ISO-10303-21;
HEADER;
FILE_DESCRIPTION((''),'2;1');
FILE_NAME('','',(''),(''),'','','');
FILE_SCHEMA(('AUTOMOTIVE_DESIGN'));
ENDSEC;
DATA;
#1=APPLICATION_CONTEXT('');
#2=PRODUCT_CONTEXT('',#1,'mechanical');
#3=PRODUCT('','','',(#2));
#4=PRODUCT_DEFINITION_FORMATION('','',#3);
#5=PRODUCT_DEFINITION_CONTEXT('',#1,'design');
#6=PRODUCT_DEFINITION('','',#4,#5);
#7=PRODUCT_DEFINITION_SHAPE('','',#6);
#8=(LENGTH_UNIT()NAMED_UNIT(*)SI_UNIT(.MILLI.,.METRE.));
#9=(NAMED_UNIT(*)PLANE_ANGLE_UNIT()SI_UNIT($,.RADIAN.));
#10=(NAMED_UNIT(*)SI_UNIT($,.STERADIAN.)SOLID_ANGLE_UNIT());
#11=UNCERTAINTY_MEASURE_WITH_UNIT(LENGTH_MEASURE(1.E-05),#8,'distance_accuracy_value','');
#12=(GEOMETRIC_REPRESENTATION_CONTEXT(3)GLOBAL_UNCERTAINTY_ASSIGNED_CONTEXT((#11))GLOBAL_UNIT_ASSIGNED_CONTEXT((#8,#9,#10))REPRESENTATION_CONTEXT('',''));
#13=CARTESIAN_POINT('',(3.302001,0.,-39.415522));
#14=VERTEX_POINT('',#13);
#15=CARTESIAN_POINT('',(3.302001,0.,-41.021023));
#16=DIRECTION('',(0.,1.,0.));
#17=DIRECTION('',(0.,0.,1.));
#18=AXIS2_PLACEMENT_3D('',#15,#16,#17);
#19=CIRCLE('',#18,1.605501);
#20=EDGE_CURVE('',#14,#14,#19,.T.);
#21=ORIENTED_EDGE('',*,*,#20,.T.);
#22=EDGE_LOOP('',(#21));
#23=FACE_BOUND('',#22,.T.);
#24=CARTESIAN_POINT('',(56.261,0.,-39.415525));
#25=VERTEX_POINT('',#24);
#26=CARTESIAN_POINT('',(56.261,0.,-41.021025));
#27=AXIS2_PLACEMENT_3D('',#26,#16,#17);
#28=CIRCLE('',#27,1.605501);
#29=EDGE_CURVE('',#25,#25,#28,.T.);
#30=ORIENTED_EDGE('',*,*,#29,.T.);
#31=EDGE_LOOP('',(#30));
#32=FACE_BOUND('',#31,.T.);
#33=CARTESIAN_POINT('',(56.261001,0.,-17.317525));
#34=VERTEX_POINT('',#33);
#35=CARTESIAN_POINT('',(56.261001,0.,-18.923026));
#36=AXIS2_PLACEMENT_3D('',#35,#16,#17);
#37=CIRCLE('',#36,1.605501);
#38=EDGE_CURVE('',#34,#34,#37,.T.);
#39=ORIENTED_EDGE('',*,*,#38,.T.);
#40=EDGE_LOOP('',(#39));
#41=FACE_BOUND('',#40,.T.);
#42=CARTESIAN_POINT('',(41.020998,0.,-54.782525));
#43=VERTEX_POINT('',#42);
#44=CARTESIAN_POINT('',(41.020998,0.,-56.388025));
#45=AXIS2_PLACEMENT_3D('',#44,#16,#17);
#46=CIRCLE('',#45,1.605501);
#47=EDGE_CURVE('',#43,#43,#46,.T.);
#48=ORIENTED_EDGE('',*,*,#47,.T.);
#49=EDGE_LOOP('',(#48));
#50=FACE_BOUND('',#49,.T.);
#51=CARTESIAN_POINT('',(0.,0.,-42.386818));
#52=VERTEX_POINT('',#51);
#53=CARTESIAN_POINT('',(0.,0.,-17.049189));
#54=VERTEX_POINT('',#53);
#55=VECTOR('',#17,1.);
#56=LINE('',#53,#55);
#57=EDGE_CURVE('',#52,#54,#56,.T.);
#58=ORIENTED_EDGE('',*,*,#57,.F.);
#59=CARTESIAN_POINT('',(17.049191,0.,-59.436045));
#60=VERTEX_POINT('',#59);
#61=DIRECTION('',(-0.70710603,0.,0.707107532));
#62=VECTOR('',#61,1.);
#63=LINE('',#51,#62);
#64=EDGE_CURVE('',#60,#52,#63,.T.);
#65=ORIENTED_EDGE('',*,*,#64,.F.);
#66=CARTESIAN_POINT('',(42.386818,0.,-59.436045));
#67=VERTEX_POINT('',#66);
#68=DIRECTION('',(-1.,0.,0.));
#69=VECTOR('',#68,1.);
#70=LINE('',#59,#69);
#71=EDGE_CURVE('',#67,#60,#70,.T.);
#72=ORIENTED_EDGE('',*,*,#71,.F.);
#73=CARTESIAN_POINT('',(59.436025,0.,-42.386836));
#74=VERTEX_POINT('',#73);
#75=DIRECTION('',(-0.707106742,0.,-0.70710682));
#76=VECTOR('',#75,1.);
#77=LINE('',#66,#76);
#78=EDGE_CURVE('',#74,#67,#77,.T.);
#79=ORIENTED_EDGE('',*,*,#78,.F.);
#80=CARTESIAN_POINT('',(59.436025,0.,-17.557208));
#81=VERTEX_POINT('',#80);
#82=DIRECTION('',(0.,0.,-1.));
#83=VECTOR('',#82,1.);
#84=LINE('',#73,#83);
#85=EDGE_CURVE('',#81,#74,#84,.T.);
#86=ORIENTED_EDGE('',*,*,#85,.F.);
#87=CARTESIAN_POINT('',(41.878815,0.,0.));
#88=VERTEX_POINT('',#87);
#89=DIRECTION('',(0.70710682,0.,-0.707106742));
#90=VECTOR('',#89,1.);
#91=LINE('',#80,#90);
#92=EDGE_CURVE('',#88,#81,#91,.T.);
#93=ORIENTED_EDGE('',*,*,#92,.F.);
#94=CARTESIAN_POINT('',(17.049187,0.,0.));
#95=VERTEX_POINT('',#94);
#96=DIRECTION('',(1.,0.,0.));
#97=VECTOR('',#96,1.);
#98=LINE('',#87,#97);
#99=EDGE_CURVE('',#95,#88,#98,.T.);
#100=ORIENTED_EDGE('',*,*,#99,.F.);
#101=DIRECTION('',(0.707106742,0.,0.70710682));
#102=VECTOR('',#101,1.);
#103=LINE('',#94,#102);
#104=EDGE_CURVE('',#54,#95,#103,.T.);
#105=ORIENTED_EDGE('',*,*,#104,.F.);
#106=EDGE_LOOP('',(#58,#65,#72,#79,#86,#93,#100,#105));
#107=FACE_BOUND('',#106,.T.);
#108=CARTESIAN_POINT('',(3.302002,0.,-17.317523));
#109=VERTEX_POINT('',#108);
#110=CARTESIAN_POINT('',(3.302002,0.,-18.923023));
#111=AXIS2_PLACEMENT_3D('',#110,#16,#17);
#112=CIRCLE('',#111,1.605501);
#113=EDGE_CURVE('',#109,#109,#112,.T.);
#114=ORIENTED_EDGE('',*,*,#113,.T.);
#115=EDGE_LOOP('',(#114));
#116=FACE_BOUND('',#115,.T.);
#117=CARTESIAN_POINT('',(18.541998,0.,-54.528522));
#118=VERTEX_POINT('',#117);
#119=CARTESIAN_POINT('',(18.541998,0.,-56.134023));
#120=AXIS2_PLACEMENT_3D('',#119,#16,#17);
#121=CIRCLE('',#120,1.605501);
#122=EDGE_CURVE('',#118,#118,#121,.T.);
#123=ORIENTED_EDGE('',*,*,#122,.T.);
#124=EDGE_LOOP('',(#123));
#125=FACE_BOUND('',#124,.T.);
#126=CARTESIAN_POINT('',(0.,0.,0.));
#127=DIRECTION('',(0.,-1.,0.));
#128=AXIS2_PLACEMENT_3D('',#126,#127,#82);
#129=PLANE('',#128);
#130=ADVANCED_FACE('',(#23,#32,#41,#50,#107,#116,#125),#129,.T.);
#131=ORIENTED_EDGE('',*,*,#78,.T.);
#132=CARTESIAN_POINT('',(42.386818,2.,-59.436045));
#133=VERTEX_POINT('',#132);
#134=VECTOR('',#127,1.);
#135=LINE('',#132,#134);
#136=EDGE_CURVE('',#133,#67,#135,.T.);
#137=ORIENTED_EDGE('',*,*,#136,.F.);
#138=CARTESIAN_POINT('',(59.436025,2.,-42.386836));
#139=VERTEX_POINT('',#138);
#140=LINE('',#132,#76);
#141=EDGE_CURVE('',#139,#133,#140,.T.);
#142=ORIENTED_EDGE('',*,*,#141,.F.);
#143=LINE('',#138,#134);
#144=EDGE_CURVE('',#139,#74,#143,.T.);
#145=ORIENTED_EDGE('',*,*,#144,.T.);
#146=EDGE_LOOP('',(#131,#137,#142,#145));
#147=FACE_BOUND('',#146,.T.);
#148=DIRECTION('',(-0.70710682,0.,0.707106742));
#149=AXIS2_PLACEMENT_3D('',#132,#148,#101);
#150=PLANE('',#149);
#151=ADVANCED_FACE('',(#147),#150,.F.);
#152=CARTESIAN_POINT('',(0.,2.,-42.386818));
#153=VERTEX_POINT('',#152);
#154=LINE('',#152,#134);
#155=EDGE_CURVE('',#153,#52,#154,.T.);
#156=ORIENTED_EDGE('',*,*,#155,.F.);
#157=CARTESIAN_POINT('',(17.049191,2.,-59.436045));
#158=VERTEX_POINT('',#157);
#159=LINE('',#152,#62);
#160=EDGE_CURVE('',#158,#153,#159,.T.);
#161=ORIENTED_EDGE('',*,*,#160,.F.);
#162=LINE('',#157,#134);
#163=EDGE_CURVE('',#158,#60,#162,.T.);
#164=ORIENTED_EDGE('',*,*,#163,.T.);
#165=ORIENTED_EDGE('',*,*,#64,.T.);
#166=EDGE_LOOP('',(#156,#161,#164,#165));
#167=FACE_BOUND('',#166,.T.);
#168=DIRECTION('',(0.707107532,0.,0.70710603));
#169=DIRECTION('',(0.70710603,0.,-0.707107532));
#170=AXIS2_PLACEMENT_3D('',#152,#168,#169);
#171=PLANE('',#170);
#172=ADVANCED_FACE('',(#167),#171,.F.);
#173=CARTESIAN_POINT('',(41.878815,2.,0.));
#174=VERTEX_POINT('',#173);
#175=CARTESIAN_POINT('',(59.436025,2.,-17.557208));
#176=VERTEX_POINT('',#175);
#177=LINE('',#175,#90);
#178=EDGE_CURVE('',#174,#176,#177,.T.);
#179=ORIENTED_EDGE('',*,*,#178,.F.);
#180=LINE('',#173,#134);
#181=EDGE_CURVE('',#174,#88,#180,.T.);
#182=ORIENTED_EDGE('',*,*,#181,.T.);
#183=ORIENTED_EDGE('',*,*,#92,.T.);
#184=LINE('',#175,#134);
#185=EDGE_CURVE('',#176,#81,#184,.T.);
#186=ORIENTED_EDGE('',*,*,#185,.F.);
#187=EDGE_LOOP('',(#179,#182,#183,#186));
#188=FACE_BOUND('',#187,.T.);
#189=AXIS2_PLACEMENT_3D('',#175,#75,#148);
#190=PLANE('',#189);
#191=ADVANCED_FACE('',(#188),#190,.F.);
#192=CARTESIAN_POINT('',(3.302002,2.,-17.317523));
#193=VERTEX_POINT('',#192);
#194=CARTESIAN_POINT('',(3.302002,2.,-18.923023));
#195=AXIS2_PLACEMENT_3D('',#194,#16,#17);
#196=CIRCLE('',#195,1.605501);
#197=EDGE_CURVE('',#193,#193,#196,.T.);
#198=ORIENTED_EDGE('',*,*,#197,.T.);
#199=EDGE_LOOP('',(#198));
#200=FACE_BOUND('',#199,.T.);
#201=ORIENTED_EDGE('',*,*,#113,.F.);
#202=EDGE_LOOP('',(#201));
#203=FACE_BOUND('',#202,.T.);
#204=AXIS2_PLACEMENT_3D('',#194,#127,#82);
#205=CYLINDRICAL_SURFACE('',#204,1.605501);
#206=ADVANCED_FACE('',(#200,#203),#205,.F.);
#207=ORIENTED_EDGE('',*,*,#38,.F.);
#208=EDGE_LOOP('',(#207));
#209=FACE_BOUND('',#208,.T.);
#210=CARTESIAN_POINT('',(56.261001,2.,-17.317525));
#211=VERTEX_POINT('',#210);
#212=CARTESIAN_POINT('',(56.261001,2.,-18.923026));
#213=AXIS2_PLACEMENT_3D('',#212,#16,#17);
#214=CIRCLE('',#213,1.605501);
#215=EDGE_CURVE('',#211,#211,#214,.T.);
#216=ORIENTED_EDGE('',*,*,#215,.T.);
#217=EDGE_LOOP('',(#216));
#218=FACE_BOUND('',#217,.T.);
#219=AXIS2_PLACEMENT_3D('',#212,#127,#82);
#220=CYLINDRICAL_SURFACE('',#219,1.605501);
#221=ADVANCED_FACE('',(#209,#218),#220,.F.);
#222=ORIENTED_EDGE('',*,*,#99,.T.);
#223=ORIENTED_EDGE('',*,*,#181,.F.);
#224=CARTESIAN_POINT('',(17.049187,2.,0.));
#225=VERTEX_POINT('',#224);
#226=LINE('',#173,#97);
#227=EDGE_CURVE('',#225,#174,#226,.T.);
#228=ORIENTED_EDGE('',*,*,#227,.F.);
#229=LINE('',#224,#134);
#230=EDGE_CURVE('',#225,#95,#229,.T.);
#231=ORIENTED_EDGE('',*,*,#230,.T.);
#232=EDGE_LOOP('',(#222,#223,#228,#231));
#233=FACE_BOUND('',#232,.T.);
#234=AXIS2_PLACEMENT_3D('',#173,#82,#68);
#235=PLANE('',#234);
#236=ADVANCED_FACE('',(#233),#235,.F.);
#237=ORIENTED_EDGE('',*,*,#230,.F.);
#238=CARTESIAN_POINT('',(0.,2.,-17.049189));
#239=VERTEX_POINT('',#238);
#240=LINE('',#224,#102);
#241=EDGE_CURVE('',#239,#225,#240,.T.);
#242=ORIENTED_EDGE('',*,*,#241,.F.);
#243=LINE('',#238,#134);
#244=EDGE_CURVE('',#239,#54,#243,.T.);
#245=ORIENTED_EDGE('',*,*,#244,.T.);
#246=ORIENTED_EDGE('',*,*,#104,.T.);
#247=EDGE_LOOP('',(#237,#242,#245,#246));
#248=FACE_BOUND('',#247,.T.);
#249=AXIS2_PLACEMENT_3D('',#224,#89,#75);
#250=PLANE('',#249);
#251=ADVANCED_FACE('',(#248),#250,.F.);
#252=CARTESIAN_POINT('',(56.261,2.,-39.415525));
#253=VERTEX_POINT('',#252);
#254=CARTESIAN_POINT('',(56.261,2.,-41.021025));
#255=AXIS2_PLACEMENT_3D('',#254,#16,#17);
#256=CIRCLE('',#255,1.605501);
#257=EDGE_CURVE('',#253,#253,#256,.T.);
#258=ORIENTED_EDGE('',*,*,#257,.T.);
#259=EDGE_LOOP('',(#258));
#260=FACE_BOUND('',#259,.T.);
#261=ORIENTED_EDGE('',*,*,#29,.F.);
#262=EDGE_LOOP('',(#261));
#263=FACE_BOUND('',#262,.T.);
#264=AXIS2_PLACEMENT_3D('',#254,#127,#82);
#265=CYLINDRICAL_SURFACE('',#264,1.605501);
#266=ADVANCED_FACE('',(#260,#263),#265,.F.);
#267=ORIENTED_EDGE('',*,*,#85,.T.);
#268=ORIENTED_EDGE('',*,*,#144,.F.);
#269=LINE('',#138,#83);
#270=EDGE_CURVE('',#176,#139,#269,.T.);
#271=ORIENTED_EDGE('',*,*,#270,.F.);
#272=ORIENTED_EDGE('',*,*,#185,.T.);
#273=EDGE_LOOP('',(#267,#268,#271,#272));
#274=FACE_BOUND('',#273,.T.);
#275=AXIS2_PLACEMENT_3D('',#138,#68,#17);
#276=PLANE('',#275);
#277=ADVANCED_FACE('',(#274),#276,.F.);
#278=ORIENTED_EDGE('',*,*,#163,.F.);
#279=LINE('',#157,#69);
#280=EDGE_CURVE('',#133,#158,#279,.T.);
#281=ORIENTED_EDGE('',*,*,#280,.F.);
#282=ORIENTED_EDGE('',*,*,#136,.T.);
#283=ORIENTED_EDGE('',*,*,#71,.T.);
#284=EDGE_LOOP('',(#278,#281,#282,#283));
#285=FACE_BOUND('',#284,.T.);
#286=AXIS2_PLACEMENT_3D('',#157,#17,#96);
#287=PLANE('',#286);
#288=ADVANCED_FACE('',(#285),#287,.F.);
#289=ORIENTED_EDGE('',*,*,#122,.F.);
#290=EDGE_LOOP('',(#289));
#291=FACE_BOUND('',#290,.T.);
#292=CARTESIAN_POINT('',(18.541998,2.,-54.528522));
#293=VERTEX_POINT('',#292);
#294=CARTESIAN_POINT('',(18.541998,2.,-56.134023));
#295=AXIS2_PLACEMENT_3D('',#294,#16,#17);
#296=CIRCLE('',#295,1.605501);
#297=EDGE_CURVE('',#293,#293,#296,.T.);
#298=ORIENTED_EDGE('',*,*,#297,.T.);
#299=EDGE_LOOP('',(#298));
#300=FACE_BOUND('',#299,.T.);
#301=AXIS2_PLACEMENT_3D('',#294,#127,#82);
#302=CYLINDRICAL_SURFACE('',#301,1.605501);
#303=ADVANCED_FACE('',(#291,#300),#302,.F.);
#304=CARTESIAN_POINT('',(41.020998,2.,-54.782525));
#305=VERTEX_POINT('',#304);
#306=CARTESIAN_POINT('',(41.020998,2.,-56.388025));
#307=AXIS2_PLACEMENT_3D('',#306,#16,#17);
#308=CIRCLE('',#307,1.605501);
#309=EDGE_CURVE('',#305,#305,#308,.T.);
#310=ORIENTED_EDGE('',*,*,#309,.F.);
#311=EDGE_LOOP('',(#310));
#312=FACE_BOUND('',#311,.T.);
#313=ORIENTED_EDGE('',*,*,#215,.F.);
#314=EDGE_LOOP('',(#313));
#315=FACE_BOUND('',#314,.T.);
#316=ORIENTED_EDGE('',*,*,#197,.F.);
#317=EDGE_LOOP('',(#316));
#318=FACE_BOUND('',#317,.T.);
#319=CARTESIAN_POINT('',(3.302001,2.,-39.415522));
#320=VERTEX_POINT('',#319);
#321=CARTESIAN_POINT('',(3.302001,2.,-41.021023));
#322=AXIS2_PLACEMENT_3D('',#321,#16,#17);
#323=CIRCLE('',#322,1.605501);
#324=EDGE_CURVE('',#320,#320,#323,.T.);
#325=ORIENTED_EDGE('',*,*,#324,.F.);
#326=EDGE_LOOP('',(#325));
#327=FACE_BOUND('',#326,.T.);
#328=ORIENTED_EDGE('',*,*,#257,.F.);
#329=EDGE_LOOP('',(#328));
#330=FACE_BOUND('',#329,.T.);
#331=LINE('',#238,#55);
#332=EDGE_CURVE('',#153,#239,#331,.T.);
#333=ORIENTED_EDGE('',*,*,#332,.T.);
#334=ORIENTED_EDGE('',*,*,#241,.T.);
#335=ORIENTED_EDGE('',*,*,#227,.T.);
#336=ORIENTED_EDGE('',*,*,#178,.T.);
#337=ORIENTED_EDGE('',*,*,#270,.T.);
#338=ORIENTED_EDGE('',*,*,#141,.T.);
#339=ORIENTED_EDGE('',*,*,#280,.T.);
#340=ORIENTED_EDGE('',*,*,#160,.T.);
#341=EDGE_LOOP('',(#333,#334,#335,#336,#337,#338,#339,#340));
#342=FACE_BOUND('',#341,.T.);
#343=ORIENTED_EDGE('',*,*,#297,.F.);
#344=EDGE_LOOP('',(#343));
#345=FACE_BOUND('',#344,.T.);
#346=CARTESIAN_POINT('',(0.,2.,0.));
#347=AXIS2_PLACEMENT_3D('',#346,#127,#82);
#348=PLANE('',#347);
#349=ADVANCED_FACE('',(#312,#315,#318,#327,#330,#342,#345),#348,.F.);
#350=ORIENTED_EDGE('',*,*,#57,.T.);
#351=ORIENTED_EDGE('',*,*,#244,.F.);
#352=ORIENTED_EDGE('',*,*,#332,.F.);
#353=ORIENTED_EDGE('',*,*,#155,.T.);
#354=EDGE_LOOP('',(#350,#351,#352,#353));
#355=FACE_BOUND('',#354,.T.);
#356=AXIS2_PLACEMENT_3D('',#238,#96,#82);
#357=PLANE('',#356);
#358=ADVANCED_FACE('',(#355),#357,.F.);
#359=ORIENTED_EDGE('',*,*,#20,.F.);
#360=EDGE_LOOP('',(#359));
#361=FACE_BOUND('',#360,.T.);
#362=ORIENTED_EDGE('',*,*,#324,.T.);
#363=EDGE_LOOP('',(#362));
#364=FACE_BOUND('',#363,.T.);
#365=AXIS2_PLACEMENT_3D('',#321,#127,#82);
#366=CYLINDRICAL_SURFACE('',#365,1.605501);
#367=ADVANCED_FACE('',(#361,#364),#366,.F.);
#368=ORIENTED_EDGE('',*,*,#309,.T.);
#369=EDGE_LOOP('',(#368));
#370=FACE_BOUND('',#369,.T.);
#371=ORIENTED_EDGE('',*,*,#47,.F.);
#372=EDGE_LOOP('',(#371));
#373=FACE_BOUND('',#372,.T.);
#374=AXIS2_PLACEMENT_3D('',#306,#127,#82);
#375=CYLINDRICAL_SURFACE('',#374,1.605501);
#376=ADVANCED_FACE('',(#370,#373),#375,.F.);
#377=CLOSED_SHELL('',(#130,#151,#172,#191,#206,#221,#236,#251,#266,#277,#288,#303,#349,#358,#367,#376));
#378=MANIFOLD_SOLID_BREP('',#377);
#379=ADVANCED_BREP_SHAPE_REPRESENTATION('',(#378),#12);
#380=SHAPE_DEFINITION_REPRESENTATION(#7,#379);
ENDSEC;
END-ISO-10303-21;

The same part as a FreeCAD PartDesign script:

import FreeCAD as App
import Part
import Sketcher
Q = App.Units.Quantity

doc = App.newDocument("Part")
body = doc.addObject("PartDesign::Body", "Body")

sketch1 = doc.addObject("Sketcher::SketchObject", "Sketch")
body.addObject(sketch1)
sketch1.AttachmentSupport = (doc.XZ_Plane, [""])
sketch1.MapMode = "FlatFace"
sketch1.addGeometry([
    Part.LineSegment(App.Vector(17.049187, 0, 0), App.Vector(41.878815, 0, 0)),
    Part.LineSegment(App.Vector(41.878815, 0, 0), App.Vector(59.436025, -17.557208, 0)),
    Part.LineSegment(App.Vector(59.436025, -17.557208, 0), App.Vector(59.436025, -42.386836, 0)),
    Part.LineSegment(App.Vector(59.436025, -42.386836, 0), App.Vector(42.386818, -59.436045, 0)),
    Part.LineSegment(App.Vector(42.386818, -59.436045, 0), App.Vector(17.049191, -59.436045, 0)),
    Part.LineSegment(App.Vector(17.049191, -59.436045, 0), App.Vector(0, -42.386818, 0)),
    Part.LineSegment(App.Vector(0, -42.386818, 0), App.Vector(0, -17.049189, 0)),
    Part.LineSegment(App.Vector(0, -17.049189, 0), App.Vector(17.049187, 0, 0)),
    Part.Circle(App.Vector(56.261001, -18.923026, 0), App.Vector(0, 0, 1), 1.605501),
    Part.Circle(App.Vector(3.302002, -18.923023, 0), App.Vector(0, 0, 1), 1.605501),
    Part.Circle(App.Vector(56.261, -41.021025, 0), App.Vector(0, 0, 1), 1.605501),
    Part.Circle(App.Vector(41.020998, -56.388025, 0), App.Vector(0, 0, 1), 1.605501),
    Part.Circle(App.Vector(3.302001, -41.021023, 0), App.Vector(0, 0, 1), 1.605501),
    Part.Circle(App.Vector(18.541998, -56.134023, 0), App.Vector(0, 0, 1), 1.605501),
], False)
sketch1.addConstraint([
    Sketcher.Constraint("Coincident", 0, 2, 1, 1),
    Sketcher.Constraint("Coincident", 1, 2, 2, 1),
    Sketcher.Constraint("Coincident", 2, 2, 3, 1),
    Sketcher.Constraint("Coincident", 3, 2, 4, 1),
    Sketcher.Constraint("Coincident", 4, 2, 5, 1),
    Sketcher.Constraint("Coincident", 5, 2, 6, 1),
    Sketcher.Constraint("Coincident", 6, 2, 7, 1),
    Sketcher.Constraint("Coincident", 7, 2, 0, 1),
    Sketcher.Constraint("Horizontal", 0),
    Sketcher.Constraint("Vertical", 2),
    Sketcher.Constraint("Horizontal", 4),
    Sketcher.Constraint("Vertical", 6),
    Sketcher.Constraint("Equal", 8, 9),
    Sketcher.Constraint("Equal", 9, 10),
    Sketcher.Constraint("Equal", 10, 11),
    Sketcher.Constraint("Equal", 11, 12),
    Sketcher.Constraint("Equal", 12, 13),
    Sketcher.Constraint("PointOnObject", 0, 2, -1),
    Sketcher.Constraint("PointOnObject", 5, 2, -2),
    Sketcher.Constraint("Perpendicular", 1, 3),
    Sketcher.Constraint("Perpendicular", 3, 5),
    Sketcher.Constraint("Perpendicular", 5, 7),
    Sketcher.Constraint("Vertical", 8, 3, 10, 3),
    Sketcher.Constraint("Vertical", 9, 3, 12, 3),
    Sketcher.Constraint("Equal", 0, 2),
    Sketcher.Constraint("Equal", 4, 6),
    Sketcher.Constraint("Equal", 3, 5),
    Sketcher.Constraint("Angle", 1, Q("-44.999997 deg")),
    Sketcher.Constraint("Diameter", 8, Q("3.211001 mm")),
    Sketcher.Constraint("DistanceX", 11, 3, 10, 3, Q("15.240002 mm")),
    Sketcher.Constraint("DistanceX", -1, 1, 8, 3, Q("56.261001 mm")),
    Sketcher.Constraint("DistanceX", -1, 1, 9, 3, Q("3.302002 mm")),
    Sketcher.Constraint("DistanceY", 10, 3, 8, 3, Q("22.098 mm")),
    Sketcher.Constraint("DistanceY", 11, 3, 10, 3, Q("15.367 mm")),
    Sketcher.Constraint("DistanceY", 11, 3, 9, 3, Q("37.465002 mm")),
    Sketcher.Constraint("DistanceY", 12, 3, 9, 3, Q("22.098 mm")),
    Sketcher.Constraint("DistanceY", 13, 3, 12, 3, Q("15.113 mm")),
    Sketcher.Constraint("DistanceX", 13, 3, 11, 3, Q("22.479 mm")),
    Sketcher.Constraint("DistanceY", 6, 1, 6, 2, Q("25.337629 mm")),
    Sketcher.Constraint("Distance", 3, Q("24.111221 mm")),
    Sketcher.Constraint("DistanceX", 0, 1, 0, 2, Q("24.829628 mm")),
    Sketcher.Constraint("DistanceY", 2, 2, 10, 3, Q("1.365811 mm")),
])
pad1 = doc.addObject("PartDesign::Pad", "Pad")
body.addObject(pad1)
pad1.Profile = sketch1
pad1.Length = 2
pad1.Reversed = True

doc.recompute()
